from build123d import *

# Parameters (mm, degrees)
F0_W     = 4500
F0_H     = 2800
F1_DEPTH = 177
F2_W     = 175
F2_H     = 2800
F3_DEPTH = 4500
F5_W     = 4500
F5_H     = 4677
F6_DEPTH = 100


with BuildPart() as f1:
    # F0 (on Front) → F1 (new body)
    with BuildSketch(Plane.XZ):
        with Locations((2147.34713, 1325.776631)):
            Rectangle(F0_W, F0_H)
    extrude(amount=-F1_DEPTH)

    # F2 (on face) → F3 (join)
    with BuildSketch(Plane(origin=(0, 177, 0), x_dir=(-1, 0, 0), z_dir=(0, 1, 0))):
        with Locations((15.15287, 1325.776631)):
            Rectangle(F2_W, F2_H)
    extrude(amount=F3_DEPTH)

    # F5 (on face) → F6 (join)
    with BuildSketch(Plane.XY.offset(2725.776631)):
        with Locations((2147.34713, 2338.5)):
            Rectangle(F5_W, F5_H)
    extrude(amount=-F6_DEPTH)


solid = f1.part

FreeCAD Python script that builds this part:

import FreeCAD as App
import Part
import Sketcher
from FreeCAD import Vector


def add_polygon(sketch, points):
    """Adds a closed chain of lines whose ends are joined by coincident constraints."""
    first, n = sketch.GeometryCount, len(points)
    for a, b in zip(points, points[1:] + points[:1]):
        sketch.addGeometry(Part.LineSegment(App.Vector(*a, 0), App.Vector(*b, 0)), False)
    for i in range(n):
        sketch.addConstraint(Sketcher.Constraint("Coincident", first + i, 2, first + (i + 1) % n, 1))

doc = App.newDocument("Part")
params = doc.addObject("Spreadsheet::Sheet", "Params")
for row, (alias, value) in enumerate([
    ("sketch1_width", "4500 mm"),
    ("sketch1_height", "2800 mm"),
    ("pad1_length", "177 mm"),
    ("sketch2_width", "175 mm"),
    ("sketch2_height", "2800 mm"),
    ("pad2_length", "4500 mm"),
    ("sketch3_width", "4500 mm"),
    ("sketch3_height", "4677 mm"),
    ("pad3_length", "100 mm"),
], start=1):
    params.set(f"A{row}", alias)
    params.set(f"B{row}", "=" + value)
    params.setAlias(f"B{row}", alias)

body = doc.addObject("PartDesign::Body", "Body")

sketch1 = body.newObject("Sketcher::SketchObject", "Sketch")
sketch1.AttachmentSupport = (doc.getObject("XZ_Plane"), [""])
sketch1.MapMode = "FlatFace"
add_polygon(sketch1, [(-102.65287, 2725.776631), (-102.65287, -74.223369), (4397.34713, -74.223369), (4397.34713, 2725.776631)])
sketch1.addConstraint([
    Sketcher.Constraint("Vertical", 0),
    Sketcher.Constraint("Horizontal", 1),
    Sketcher.Constraint("Vertical", 2),
    Sketcher.Constraint("Horizontal", 3),
    Sketcher.Constraint("DistanceX", 1, 1, 1, 2, 4500.0),
    Sketcher.Constraint("DistanceY", 0, 2, 0, 1, 2800.0),
    Sketcher.Constraint("DistanceX", 0, 2, -1, 1, 102.65287),
    Sketcher.Constraint("DistanceY", 0, 2, -1, 1, 74.223369),
])
sketch1.setExpression("Constraints[8]", "Params.sketch1_width")
sketch1.setExpression("Constraints[9]", "Params.sketch1_height")
pad1 = body.newObject("PartDesign::Pad", "Pad")
pad1.Profile = sketch1
pad1.setExpression("Length", "Params.pad1_length")
pad1.Reversed = True

sketch2 = body.newObject("Sketcher::SketchObject", "Sketch001")
sketch2.AttachmentSupport = (doc.getObject("XZ_Plane"), [""])
sketch2.MapMode = "FlatFace"
sketch2.AttachmentOffset = App.Placement(Vector(0, 0, -177), App.Rotation())
add_polygon(sketch2, [(72.34713, 2725.776631), (72.34713, -74.223369), (-102.65287, -74.223369), (-102.65287, 2725.776631)])
sketch2.addConstraint([
    Sketcher.Constraint("Vertical", 0),
    Sketcher.Constraint("Horizontal", 1),
    Sketcher.Constraint("Vertical", 2),
    Sketcher.Constraint("Horizontal", 3),
    Sketcher.Constraint("DistanceX", 1, 2, 1, 1, 175.0),
    Sketcher.Constraint("DistanceY", 0, 2, 0, 1, 2800.0),
    Sketcher.Constraint("DistanceX", -1, 1, 0, 2, 72.34713),
    Sketcher.Constraint("DistanceY", 0, 2, -1, 1, 74.223369),
])
sketch2.setExpression("Constraints[8]", "Params.sketch2_width")
sketch2.setExpression("Constraints[9]", "Params.sketch2_height")
pad2 = body.newObject("PartDesign::Pad", "Pad001")
pad2.Profile = sketch2
pad2.setExpression("Length", "Params.pad2_length")
pad2.Reversed = True

sketch3 = body.newObject("Sketcher::SketchObject", "Sketch002")
sketch3.AttachmentSupport = (doc.getObject("XY_Plane"), [""])
sketch3.MapMode = "FlatFace"
sketch3.AttachmentOffset = App.Placement(Vector(0, 0, 2725.776631), App.Rotation())
add_polygon(sketch3, [(-102.65287, 4677), (-102.65287, 0), (4397.34713, 0), (4397.34713, 4677)])
sketch3.addConstraint([
    Sketcher.Constraint("Vertical", 0),
    Sketcher.Constraint("Horizontal", 1),
    Sketcher.Constraint("Vertical", 2),
    Sketcher.Constraint("Horizontal", 3),
    Sketcher.Constraint("PointOnObject", 0, 2, -1),
    Sketcher.Constraint("DistanceX", 1, 1, 1, 2, 4500.0),
    Sketcher.Constraint("DistanceY", 0, 2, 0, 1, 4677.0),
    Sketcher.Constraint("DistanceX", 0, 2, -1, 1, 102.65287),
])
sketch3.setExpression("Constraints[9]", "Params.sketch3_width")
sketch3.setExpression("Constraints[10]", "Params.sketch3_height")
pad3 = body.newObject("PartDesign::Pad", "Pad002")
pad3.Profile = sketch3
pad3.setExpression("Length", "Params.pad3_length")
pad3.Reversed = True

doc.recompute()
